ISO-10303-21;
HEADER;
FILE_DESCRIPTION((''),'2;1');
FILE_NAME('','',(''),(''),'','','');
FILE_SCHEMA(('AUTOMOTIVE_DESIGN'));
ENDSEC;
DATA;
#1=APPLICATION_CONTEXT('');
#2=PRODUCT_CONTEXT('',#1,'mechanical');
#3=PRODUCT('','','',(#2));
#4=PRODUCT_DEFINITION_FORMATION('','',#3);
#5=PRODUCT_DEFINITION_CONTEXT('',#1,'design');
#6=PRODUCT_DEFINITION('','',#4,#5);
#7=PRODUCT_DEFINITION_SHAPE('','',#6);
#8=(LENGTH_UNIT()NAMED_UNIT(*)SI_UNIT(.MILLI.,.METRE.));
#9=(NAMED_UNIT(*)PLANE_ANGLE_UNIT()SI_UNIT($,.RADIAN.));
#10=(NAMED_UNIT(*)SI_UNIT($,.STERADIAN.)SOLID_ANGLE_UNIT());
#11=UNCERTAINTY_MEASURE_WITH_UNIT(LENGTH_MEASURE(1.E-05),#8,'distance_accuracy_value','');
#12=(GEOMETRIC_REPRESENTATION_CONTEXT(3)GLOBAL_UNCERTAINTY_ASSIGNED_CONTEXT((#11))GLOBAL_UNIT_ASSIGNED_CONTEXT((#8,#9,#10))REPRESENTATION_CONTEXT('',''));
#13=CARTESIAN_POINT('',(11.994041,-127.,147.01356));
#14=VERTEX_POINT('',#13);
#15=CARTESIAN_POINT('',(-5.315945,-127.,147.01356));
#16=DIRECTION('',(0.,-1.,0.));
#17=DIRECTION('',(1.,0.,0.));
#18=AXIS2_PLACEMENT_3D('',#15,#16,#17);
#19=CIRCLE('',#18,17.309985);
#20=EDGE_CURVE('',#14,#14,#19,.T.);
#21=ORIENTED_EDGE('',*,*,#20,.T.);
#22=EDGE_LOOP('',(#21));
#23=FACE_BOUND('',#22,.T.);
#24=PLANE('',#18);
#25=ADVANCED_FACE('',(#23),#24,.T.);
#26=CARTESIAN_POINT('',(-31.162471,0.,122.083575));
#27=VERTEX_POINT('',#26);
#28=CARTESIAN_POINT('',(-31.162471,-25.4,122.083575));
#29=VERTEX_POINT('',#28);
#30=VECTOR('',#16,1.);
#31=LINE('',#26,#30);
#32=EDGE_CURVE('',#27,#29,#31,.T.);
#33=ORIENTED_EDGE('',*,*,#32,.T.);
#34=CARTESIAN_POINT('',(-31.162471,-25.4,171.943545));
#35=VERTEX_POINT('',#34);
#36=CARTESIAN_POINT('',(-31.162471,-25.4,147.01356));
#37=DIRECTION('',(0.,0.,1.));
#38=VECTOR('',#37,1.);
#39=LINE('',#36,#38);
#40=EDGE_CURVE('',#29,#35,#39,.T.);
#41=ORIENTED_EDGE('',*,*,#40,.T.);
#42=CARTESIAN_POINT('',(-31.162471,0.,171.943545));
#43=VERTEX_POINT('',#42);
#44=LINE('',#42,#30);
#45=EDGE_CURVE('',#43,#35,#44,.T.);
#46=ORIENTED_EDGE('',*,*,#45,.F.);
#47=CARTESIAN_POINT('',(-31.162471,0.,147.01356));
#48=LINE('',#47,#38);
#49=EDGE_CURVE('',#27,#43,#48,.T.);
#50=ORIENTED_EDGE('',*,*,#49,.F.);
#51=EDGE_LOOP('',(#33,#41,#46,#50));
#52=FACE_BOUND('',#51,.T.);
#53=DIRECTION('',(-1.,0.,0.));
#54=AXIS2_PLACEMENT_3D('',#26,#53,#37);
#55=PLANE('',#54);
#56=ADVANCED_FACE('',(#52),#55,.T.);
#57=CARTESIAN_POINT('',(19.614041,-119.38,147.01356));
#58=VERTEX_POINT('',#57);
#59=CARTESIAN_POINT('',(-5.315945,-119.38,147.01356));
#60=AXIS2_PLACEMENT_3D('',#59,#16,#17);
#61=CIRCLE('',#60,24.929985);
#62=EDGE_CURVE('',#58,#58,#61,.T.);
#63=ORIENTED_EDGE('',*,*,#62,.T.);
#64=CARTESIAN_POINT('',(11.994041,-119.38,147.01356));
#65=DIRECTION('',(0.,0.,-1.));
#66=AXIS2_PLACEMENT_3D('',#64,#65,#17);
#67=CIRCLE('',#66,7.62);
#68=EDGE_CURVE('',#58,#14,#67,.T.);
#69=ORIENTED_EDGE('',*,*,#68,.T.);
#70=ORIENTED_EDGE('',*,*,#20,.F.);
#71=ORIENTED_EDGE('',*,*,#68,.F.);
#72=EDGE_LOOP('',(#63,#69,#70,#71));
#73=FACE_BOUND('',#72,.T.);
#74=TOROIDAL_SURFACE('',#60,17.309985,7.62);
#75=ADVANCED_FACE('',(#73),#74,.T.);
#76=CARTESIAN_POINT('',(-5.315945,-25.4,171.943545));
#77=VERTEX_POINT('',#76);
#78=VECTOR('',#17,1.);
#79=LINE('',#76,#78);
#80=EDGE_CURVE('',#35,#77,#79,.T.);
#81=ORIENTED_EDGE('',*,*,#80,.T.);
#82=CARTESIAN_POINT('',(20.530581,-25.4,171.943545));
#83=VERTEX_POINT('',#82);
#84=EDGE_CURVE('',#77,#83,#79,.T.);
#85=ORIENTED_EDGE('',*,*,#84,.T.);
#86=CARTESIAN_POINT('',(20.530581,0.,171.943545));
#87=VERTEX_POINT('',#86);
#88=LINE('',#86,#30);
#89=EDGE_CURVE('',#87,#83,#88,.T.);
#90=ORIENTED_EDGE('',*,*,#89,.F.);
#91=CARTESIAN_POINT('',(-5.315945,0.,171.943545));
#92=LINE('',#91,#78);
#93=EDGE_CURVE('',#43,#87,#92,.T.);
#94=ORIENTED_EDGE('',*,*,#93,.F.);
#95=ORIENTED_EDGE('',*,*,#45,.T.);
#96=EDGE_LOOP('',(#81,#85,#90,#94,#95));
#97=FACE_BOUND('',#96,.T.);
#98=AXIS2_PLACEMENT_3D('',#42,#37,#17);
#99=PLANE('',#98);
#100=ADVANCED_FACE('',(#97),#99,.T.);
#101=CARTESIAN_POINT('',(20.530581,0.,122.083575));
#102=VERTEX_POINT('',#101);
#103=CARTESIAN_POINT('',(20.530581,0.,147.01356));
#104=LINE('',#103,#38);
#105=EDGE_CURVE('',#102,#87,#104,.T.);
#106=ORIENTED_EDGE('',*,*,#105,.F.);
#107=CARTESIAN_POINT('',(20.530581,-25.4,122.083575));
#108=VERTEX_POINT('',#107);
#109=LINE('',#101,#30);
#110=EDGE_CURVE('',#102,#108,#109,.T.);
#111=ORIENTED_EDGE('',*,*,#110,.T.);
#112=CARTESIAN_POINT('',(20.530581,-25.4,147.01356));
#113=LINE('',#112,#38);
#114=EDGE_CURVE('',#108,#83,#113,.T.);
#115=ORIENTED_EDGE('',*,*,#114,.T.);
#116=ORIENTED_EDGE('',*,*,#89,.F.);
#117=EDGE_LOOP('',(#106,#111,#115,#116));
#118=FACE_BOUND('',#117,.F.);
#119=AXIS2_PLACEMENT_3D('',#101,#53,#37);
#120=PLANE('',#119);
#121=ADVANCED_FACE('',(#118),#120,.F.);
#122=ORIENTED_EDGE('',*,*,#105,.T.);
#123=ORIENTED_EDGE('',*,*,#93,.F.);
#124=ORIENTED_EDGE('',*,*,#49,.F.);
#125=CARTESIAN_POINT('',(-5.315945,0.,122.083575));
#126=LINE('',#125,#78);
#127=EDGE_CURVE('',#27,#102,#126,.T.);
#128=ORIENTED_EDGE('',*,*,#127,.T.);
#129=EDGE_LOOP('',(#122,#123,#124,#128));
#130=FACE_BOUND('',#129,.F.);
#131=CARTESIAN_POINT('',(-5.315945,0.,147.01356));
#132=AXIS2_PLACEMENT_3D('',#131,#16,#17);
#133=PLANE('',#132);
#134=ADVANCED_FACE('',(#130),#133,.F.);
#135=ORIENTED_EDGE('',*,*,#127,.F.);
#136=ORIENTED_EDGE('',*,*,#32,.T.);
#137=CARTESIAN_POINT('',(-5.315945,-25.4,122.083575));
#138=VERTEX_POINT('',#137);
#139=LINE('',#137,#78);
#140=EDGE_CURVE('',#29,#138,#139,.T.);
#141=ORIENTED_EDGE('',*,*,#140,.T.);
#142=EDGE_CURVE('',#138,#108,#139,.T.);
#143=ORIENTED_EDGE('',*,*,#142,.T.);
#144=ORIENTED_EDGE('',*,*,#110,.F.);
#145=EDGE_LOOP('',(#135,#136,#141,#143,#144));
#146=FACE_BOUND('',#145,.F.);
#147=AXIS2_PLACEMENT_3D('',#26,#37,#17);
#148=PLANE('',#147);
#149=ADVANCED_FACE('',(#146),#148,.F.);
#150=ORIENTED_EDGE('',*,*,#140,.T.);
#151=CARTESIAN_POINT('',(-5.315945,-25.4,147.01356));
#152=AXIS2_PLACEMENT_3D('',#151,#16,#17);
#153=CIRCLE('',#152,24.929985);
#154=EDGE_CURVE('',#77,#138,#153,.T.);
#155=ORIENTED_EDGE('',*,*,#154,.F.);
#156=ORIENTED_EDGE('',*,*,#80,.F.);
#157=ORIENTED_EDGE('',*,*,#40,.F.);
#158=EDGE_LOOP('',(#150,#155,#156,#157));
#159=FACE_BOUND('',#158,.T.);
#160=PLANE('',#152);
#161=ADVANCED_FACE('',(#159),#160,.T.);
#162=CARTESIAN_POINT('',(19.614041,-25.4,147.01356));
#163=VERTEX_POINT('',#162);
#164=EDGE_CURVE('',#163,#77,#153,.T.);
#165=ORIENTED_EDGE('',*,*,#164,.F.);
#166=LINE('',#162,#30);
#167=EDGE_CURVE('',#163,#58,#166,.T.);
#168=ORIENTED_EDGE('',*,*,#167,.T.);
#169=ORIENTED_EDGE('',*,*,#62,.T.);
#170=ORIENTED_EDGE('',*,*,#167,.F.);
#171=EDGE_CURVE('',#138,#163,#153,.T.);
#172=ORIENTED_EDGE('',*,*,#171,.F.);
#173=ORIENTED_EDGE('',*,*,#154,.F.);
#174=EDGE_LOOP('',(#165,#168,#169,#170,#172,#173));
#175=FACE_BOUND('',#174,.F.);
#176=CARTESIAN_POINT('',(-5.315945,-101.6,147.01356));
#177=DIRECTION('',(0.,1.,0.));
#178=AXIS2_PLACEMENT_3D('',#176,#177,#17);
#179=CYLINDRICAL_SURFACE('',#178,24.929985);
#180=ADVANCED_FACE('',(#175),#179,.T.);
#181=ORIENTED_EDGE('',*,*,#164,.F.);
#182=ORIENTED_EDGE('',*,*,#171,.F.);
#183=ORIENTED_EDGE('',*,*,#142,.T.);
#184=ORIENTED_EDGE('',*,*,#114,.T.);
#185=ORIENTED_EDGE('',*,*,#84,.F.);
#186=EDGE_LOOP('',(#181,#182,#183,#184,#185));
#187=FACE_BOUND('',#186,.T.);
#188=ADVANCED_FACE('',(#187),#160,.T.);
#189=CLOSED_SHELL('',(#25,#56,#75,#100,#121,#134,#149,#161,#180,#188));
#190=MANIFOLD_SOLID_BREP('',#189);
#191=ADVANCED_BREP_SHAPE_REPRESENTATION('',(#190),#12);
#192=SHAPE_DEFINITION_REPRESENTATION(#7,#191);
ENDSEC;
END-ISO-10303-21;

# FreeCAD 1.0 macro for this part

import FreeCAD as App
import Part
import Sketcher
Q = App.Units.Quantity


def edges_at(feature, points):
    """Names of the edges that pass closest to the given points."""
    edges = feature.Shape.Edges
    near = lambda p: min(range(len(edges)), key=lambda i: edges[i].distToShape(Part.Vertex(*p))[0])
    return sorted({f"Edge{near(p) + 1}" for p in points})

doc = App.newDocument("Part")
body = doc.addObject("PartDesign::Body", "Body")

# Sketch on XZ plane
sketch1 = body.newObject("Sketcher::SketchObject", "Sketch")
sketch1.AttachmentSupport = (doc.getObject("XZ_Plane"), [""])
sketch1.MapMode = "FlatFace"
sketch1.addGeometry(Part.LineSegment(App.Vector(-31.162471, 171.943545, 0), App.Vector(-31.162471, 122.083575, 0)), False)
sketch1.addGeometry(Part.LineSegment(App.Vector(-31.162471, 122.083575, 0), App.Vector(20.530581, 122.083575, 0)), False)
sketch1.addGeometry(Part.LineSegment(App.Vector(20.530581, 122.083575, 0), App.Vector(20.530581, 171.943545, 0)), False)
sketch1.addGeometry(Part.LineSegment(App.Vector(20.530581, 171.943545, 0), App.Vector(-31.162471, 171.943545, 0)), False)
sketch1.addConstraint(Sketcher.Constraint("Coincident", 0, 2, 1, 1))
sketch1.addConstraint(Sketcher.Constraint("Coincident", 1, 2, 2, 1))
sketch1.addConstraint(Sketcher.Constraint("Coincident", 2, 2, 3, 1))
sketch1.addConstraint(Sketcher.Constraint("Coincident", 3, 2, 0, 1))
sketch1.addConstraint(Sketcher.Constraint("Vertical", 0))
sketch1.addConstraint(Sketcher.Constraint("Horizontal", 1))
sketch1.addConstraint(Sketcher.Constraint("Vertical", 2))
sketch1.addConstraint(Sketcher.Constraint("Horizontal", 3))
sketch1.addConstraint(Sketcher.Constraint("DistanceY", 0, 2, 0, 1, 49.859971))
sketch1.addConstraint(Sketcher.Constraint("DistanceX", 1, 1, 1, 2, 51.693052))
sketch1.addConstraint(Sketcher.Constraint("DistanceX", 0, 2, -1, 1, 31.162471))
sketch1.addConstraint(Sketcher.Constraint("DistanceY", -1, 1, 0, 2, 122.083575))
pad1 = body.newObject("PartDesign::Pad", "Pad")
pad1.Profile = sketch1
pad1.Length = Q("1 in")

# Sketch on XZ plane
sketch2 = body.newObject("Sketcher::SketchObject", "Sketch001")
sketch2.AttachmentSupport = (doc.getObject("XZ_Plane"), [""])
sketch2.MapMode = "FlatFace"
sketch2.AttachmentOffset = App.Placement(App.Vector(0, 0, 1 * 25.4), App.Rotation())
sketch2.addGeometry(Part.Circle(App.Vector(-5.315945, 147.01356, 0), App.Vector(0, 0, 1), 24.929985), False)
sketch2.addConstraint(Sketcher.Constraint("Diameter", 0, 49.859971))
sketch2.addConstraint(Sketcher.Constraint("DistanceY", -1, 1, 0, 3, 147.01356))
sketch2.addConstraint(Sketcher.Constraint("DistanceX", 0, 3, -1, 1, 5.315945))
pad2 = body.newObject("PartDesign::Pad", "Pad001")
pad2.Profile = sketch2
pad2.Length = Q("3 in")

# Sketch on XZ plane
sketch3 = body.newObject("Sketcher::SketchObject", "Sketch002")
sketch3.AttachmentSupport = (doc.getObject("XZ_Plane"), [""])
sketch3.MapMode = "FlatFace"
sketch3.AttachmentOffset = App.Placement(App.Vector(0, 0, 4 * 25.4), App.Rotation())
sketch3.addGeometry(Part.Circle(App.Vector(-5.315945, 147.01356, 0), App.Vector(0, 0, 1), 24.929985), False)
sketch3.addConstraint(Sketcher.Constraint("Diameter", 0, 49.859971))
sketch3.addConstraint(Sketcher.Constraint("DistanceY", -1, 1, 0, 3, 147.01356))
sketch3.addConstraint(Sketcher.Constraint("DistanceX", 0, 3, -1, 1, 5.315945))
pad3 = body.newObject("PartDesign::Pad", "Pad002")
pad3.Profile = sketch3
pad3.Length = Q("1 in")
doc.recompute()

fillet = body.newObject("PartDesign::Fillet", "Fillet")
fillet.Base = (pad3, edges_at(pad3, [(-30.246, -127, 147.014)]))
fillet.Radius = Q("0.3 in")

doc.recompute()
